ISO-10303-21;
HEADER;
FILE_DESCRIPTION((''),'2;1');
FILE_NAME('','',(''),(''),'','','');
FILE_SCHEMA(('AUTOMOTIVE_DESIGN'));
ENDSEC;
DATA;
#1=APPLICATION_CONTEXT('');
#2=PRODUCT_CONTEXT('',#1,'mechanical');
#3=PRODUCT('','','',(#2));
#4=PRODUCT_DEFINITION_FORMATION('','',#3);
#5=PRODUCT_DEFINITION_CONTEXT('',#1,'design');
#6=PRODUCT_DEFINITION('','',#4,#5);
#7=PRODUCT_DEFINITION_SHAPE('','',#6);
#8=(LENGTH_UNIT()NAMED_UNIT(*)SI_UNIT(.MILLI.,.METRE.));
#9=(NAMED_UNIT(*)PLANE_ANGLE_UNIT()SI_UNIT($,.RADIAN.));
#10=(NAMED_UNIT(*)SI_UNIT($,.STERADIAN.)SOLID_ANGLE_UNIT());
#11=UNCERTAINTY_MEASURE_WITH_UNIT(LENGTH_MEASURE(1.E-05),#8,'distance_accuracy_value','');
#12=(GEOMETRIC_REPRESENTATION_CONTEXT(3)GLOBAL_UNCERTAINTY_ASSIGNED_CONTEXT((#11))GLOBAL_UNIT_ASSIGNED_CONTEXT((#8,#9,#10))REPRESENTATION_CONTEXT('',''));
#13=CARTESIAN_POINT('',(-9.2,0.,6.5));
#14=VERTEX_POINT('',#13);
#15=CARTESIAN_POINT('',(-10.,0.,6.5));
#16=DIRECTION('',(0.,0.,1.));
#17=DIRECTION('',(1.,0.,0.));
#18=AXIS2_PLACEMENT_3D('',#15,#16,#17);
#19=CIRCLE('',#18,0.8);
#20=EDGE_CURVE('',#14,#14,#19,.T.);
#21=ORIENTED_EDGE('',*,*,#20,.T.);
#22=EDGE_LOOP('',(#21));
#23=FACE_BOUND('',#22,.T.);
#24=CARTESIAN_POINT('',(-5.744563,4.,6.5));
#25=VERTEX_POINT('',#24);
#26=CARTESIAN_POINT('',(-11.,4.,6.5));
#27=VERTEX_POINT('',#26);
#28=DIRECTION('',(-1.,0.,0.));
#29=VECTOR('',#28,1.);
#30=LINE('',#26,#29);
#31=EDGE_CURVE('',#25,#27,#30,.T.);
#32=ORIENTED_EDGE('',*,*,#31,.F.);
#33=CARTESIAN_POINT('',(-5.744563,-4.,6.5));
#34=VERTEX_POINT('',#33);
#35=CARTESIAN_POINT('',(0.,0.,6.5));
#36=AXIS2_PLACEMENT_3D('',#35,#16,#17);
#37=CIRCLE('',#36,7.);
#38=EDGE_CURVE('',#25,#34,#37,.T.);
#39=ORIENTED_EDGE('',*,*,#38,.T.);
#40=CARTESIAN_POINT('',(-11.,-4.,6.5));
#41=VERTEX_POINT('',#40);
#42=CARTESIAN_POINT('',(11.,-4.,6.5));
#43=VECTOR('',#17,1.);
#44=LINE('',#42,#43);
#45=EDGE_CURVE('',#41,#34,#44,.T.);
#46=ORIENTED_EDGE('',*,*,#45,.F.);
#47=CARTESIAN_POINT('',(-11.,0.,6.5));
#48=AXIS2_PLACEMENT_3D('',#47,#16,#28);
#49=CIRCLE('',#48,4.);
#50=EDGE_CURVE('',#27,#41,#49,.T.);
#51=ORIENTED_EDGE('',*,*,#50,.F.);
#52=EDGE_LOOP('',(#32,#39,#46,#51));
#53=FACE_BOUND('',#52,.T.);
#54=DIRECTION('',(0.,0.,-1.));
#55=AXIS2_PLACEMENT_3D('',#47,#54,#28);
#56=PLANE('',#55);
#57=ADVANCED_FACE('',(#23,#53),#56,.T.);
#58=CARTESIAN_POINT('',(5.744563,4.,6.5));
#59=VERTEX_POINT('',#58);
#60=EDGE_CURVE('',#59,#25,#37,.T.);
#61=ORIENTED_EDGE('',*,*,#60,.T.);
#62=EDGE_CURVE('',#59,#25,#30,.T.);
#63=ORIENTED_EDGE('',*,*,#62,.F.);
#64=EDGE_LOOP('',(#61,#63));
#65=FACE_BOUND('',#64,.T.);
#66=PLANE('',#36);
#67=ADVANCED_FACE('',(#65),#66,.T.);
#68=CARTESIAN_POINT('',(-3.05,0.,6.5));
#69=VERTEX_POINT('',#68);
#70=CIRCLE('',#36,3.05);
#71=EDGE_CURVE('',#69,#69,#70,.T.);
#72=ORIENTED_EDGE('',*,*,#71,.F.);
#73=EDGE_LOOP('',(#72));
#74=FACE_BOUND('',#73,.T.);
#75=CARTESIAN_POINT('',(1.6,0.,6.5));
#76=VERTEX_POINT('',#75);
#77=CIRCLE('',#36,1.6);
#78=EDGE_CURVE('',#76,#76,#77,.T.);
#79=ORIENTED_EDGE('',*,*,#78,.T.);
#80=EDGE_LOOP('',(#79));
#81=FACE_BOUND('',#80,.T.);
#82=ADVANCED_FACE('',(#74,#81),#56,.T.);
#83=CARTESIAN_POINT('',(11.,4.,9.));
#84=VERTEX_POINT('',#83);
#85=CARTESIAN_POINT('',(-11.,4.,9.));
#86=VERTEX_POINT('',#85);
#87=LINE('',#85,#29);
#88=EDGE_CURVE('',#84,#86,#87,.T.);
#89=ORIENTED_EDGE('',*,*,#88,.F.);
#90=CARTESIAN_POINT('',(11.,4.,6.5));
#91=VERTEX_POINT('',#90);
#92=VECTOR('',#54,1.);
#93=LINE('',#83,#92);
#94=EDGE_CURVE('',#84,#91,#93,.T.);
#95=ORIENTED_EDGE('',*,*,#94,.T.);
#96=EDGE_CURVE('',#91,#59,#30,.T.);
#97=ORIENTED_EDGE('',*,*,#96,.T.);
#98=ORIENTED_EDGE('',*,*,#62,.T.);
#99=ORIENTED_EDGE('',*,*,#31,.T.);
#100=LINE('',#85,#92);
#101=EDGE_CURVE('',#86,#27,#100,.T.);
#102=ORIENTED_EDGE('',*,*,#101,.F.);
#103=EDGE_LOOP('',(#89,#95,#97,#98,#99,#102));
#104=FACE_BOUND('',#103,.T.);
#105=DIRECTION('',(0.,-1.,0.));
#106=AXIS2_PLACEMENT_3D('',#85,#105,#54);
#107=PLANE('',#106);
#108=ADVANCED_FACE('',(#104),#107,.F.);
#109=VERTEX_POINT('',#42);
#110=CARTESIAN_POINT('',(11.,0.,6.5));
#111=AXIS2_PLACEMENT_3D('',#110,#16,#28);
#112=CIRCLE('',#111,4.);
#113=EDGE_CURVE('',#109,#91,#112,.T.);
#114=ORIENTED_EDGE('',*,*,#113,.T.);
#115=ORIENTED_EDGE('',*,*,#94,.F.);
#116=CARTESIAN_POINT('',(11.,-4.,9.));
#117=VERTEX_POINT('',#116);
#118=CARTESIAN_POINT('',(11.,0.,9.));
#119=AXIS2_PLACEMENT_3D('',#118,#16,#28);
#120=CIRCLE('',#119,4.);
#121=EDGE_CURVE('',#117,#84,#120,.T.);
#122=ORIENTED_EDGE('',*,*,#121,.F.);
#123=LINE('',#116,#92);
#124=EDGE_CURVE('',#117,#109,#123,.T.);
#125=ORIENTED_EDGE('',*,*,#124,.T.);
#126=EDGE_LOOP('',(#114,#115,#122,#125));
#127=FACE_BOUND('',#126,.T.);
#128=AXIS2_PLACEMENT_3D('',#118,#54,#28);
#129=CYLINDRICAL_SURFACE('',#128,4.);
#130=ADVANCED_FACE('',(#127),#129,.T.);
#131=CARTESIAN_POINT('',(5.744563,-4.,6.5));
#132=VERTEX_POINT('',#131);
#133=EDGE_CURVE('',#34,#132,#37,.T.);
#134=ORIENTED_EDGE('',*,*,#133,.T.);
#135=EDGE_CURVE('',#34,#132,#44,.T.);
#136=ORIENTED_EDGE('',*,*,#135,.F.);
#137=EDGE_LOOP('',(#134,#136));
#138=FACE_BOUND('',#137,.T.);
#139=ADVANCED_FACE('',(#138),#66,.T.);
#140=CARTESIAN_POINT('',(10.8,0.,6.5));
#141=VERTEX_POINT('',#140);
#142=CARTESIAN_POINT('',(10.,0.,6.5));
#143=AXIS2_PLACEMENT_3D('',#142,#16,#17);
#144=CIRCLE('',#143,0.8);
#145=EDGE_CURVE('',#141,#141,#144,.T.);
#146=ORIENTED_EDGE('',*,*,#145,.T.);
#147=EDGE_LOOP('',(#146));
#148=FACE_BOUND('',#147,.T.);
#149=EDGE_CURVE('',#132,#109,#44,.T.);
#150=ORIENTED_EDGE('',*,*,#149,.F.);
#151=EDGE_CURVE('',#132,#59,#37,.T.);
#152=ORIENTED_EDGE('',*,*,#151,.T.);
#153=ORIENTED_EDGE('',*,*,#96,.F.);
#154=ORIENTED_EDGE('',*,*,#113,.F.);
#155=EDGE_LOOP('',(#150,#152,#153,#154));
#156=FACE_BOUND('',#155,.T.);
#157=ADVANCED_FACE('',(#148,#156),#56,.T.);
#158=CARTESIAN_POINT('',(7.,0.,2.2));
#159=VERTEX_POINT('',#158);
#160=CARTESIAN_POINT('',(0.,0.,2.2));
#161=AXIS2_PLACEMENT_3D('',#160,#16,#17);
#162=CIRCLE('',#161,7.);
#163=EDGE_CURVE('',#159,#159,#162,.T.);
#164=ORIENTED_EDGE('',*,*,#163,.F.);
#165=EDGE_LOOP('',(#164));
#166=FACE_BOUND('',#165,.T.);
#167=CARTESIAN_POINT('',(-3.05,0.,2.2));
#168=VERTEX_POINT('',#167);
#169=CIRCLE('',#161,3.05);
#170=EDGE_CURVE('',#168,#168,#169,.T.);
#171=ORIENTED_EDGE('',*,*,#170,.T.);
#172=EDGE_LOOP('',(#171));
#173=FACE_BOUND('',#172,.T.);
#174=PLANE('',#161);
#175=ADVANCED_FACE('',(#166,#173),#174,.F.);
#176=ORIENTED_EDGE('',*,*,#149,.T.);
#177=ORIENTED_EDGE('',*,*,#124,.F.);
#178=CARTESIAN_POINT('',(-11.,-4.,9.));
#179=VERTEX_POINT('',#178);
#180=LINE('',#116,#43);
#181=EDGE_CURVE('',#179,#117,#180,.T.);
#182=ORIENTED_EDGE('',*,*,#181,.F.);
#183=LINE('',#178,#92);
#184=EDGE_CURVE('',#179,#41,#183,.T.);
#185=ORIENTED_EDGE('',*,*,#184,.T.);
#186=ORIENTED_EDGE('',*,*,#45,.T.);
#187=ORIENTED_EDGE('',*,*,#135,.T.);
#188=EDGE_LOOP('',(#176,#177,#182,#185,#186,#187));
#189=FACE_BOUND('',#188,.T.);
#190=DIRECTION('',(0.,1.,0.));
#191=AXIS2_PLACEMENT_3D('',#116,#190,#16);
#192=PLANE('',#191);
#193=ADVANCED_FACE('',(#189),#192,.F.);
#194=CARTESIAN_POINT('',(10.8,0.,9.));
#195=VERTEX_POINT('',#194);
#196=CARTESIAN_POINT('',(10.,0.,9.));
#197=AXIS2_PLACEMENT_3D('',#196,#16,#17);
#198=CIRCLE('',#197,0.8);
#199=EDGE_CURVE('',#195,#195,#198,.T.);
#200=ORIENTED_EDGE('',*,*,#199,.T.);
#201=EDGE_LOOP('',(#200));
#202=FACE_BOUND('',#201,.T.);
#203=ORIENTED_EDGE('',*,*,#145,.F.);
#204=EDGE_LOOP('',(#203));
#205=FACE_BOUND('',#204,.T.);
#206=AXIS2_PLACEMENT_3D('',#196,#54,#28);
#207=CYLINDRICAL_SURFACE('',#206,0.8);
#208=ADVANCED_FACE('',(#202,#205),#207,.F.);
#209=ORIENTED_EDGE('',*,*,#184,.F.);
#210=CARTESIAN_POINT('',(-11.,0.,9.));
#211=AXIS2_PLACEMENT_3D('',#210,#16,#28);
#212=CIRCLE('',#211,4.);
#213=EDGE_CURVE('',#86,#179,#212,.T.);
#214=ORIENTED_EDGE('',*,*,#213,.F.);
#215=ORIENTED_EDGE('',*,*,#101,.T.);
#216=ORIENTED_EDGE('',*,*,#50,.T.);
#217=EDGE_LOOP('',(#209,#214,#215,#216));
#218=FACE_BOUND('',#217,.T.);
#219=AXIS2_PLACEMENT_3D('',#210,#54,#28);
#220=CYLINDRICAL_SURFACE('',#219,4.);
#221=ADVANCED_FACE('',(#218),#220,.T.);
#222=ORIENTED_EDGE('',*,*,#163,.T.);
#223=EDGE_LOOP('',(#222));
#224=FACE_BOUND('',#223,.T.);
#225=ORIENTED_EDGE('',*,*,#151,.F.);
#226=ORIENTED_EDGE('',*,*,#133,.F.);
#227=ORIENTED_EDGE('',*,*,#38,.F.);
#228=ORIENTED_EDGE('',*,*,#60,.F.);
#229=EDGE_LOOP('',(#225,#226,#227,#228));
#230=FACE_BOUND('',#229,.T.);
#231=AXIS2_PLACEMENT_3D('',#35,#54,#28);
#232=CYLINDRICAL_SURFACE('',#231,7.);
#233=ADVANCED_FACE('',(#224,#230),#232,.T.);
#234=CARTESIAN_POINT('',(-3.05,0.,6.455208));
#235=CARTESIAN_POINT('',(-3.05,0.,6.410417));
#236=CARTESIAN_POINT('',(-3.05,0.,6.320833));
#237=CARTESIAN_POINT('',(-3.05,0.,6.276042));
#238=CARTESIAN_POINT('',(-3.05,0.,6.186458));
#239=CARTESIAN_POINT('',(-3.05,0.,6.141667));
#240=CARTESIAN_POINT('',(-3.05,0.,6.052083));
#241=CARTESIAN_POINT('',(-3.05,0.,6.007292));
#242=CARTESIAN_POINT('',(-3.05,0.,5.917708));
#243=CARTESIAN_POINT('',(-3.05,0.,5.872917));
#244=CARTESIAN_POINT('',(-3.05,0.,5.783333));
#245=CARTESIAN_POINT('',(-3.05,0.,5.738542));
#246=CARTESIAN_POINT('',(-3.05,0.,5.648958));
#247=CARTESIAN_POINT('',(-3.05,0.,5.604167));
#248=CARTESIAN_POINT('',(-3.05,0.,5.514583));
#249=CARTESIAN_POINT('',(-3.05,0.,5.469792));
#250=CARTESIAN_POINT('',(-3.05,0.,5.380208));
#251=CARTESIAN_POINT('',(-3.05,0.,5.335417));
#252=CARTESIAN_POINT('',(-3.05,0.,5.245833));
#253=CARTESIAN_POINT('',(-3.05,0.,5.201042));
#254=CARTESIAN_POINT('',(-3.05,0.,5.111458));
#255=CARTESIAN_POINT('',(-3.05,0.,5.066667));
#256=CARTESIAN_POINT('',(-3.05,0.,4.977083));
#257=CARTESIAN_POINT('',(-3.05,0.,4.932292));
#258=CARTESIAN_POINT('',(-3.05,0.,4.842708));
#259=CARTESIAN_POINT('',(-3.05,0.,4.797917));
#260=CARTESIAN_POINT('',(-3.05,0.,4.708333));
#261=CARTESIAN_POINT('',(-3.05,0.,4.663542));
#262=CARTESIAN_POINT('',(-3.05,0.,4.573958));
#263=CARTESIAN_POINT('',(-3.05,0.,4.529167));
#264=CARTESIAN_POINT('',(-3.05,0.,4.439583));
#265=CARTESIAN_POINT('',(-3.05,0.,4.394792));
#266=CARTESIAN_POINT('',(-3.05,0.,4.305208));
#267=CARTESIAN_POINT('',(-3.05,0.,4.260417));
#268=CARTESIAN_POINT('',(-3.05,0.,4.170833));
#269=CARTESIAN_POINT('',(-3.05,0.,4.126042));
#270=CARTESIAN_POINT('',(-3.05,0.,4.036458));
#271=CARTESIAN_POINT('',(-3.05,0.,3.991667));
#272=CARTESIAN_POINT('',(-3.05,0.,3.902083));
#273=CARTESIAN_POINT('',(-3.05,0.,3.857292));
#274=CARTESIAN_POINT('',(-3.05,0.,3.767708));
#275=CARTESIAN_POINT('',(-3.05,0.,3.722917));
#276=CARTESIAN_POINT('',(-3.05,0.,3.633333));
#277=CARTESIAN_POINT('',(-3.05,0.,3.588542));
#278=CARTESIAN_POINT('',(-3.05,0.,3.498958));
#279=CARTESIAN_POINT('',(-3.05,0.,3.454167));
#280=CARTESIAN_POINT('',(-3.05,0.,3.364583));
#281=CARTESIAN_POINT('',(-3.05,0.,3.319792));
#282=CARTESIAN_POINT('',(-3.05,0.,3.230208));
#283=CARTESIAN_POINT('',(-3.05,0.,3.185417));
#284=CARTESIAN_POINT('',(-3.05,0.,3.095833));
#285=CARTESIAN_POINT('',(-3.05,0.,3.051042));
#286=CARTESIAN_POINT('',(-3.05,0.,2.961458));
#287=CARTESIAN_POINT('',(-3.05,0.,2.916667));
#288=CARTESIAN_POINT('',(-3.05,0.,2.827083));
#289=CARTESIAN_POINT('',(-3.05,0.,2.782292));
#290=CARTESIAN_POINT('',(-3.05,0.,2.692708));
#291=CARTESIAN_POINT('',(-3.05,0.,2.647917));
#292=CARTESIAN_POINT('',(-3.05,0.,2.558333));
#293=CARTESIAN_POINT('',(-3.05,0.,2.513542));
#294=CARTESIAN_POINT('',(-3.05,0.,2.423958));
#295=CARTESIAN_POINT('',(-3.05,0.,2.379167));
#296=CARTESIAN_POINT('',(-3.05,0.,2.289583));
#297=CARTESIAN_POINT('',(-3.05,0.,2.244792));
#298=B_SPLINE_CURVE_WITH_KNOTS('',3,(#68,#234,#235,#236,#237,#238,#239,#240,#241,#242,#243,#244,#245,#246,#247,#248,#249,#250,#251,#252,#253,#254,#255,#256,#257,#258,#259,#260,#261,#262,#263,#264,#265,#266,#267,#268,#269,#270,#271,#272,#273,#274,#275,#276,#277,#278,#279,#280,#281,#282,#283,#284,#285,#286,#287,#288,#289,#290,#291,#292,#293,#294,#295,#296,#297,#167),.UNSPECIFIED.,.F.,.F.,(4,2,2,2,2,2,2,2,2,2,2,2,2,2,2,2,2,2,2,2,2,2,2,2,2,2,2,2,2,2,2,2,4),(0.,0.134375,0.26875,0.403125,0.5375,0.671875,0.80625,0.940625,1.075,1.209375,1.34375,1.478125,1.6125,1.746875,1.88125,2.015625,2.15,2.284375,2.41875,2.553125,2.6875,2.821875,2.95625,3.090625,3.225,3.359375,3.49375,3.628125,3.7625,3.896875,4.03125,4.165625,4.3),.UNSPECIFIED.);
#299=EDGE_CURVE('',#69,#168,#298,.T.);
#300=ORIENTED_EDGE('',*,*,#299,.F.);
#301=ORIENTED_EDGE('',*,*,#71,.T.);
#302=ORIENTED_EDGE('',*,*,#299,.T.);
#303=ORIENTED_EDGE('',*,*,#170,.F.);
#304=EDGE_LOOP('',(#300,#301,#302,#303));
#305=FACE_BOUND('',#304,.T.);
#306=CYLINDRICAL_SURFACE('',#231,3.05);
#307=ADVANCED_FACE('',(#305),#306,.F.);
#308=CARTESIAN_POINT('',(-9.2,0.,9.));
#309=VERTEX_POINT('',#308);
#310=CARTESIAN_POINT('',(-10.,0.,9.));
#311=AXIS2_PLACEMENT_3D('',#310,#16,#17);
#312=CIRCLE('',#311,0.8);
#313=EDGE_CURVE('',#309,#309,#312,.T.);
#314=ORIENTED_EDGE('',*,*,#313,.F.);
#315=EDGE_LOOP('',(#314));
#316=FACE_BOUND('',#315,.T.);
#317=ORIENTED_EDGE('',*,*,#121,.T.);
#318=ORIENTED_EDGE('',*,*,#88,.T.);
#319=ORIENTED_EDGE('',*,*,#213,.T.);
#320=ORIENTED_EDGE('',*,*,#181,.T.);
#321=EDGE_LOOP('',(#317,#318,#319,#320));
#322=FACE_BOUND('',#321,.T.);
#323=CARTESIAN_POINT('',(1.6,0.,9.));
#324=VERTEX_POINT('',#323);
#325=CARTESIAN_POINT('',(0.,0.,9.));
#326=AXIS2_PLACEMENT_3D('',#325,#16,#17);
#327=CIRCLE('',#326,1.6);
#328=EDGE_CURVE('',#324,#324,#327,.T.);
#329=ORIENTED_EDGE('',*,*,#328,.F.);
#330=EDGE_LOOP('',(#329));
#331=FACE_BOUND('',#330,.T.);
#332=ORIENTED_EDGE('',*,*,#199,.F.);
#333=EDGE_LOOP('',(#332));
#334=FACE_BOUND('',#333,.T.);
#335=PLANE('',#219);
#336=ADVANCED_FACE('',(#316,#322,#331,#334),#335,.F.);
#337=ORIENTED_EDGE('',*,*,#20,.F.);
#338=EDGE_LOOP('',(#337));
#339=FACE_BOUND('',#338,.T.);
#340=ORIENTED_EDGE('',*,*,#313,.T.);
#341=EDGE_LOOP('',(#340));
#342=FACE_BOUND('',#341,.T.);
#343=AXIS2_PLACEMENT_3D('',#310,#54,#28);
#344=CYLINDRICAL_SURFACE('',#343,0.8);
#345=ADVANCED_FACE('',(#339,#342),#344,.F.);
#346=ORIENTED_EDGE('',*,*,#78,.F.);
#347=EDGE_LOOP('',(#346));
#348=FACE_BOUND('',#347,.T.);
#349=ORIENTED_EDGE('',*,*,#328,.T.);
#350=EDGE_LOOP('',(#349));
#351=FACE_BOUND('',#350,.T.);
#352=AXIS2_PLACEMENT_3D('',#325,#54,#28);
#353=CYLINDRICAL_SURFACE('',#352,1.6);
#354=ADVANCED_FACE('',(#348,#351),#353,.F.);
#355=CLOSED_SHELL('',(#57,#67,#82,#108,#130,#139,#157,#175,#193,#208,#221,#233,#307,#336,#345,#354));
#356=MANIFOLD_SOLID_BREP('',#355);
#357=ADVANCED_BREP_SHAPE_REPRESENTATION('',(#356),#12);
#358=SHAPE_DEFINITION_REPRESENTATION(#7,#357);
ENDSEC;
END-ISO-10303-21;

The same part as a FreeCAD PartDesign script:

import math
import FreeCAD as App
import Part
import Sketcher

V = App.Vector
Q = App.Units.Quantity

doc = App.newDocument("Part")
body = doc.addObject("PartDesign::Body", "Body")

# Sketch on XY plane
sketch1 = body.newObject("Sketcher::SketchObject", "Sketch")
sketch1.AttachmentSupport = (doc.getObject("XY_Plane"), [""])
sketch1.MapMode = "FlatFace"
sketch1.AttachmentOffset = App.Placement(V(0, 0, 2.2), App.Rotation())
sketch1.addGeometry(Part.Circle(V(0, 0, 0), V(0, 0, 1), 7), False)
sketch1.addGeometry(Part.Circle(V(0, 0, 0), V(0, 0, 1), 3), False)
sketch1.addConstraint(Sketcher.Constraint("Coincident", 0, 3, -1, 1))
sketch1.addConstraint(Sketcher.Constraint("Coincident", 1, 3, -1, 1))
sketch1.addConstraint(Sketcher.Constraint("Diameter", 0, Q("14 mm")))
sketch1.addConstraint(Sketcher.Constraint("Diameter", 1, Q("6.1 mm")))
pad1 = body.newObject("PartDesign::Pad", "Pad")
pad1.Profile = sketch1
pad1.Length = 4.3

# Sketch on XY plane
sketch2 = body.newObject("Sketcher::SketchObject", "Sketch001")
sketch2.AttachmentSupport = (doc.getObject("XY_Plane"), [""])
sketch2.MapMode = "FlatFace"
sketch2.AttachmentOffset = App.Placement(V(0, 0, 6.5), App.Rotation())
sketch2.addGeometry(Part.LineSegment(V(11, 4, 0), V(-11, 4, 0)), False)
sketch2.addGeometry(Part.ArcOfCircle(Part.Circle(V(-11, 0, 0), V(0, 0, 1), 4), math.radians(90), math.radians(270)), False)
sketch2.addGeometry(Part.LineSegment(V(-11, -4, 0), V(11, -4, 0)), False)
sketch2.addGeometry(Part.ArcOfCircle(Part.Circle(V(11, 0, 0), V(0, 0, 1), 4), math.radians(-90), math.radians(90)), False)
sketch2.addGeometry(Part.Circle(V(10, 0, 0), V(0, 0, 1), 0.8), False)
sketch2.addGeometry(Part.Circle(V(0, 0, 0), V(0, 0, 1), 1.6), False)
sketch2.addGeometry(Part.Circle(V(-10, 0, 0), V(0, 0, 1), 0.8), False)
sketch2.addConstraint(Sketcher.Constraint("Tangent", 0, 2, 1, 1))
sketch2.addConstraint(Sketcher.Constraint("Tangent", 1, 2, 2, 1))
sketch2.addConstraint(Sketcher.Constraint("Tangent", 2, 2, 3, 1))
sketch2.addConstraint(Sketcher.Constraint("Tangent", 3, 2, 0, 1))
sketch2.addConstraint(Sketcher.Constraint("Horizontal", 0))
sketch2.addConstraint(Sketcher.Constraint("Horizontal", 2))
sketch2.addConstraint(Sketcher.Constraint("Coincident", 5, 3, -1, 1))
sketch2.addConstraint(Sketcher.Constraint("Equal", 4, 6))
sketch2.addConstraint(Sketcher.Constraint("Symmetric", 1, 3, 3, 3, -1, 1))
sketch2.addConstraint(Sketcher.Constraint("Symmetric", 4, 3, 6, 3, -1, 1))
sketch2.addConstraint(Sketcher.Constraint("PointOnObject", 4, 3, -1))
sketch2.addConstraint(Sketcher.Constraint("Radius", 1, Q("4 mm")))
sketch2.addConstraint(Sketcher.Constraint("Diameter", 4, Q("1.6 mm")))
sketch2.addConstraint(Sketcher.Constraint("Diameter", 5, Q("3.2 mm")))
sketch2.addConstraint(Sketcher.Constraint("DistanceX", 0, 2, 0, 1, Q("22 mm")))
sketch2.addConstraint(Sketcher.Constraint("DistanceX", -1, 1, 4, 3, Q("10 mm")))
pad2 = body.newObject("PartDesign::Pad", "Pad001")
pad2.Profile = sketch2
pad2.Length = 2.5

doc.recompute()
